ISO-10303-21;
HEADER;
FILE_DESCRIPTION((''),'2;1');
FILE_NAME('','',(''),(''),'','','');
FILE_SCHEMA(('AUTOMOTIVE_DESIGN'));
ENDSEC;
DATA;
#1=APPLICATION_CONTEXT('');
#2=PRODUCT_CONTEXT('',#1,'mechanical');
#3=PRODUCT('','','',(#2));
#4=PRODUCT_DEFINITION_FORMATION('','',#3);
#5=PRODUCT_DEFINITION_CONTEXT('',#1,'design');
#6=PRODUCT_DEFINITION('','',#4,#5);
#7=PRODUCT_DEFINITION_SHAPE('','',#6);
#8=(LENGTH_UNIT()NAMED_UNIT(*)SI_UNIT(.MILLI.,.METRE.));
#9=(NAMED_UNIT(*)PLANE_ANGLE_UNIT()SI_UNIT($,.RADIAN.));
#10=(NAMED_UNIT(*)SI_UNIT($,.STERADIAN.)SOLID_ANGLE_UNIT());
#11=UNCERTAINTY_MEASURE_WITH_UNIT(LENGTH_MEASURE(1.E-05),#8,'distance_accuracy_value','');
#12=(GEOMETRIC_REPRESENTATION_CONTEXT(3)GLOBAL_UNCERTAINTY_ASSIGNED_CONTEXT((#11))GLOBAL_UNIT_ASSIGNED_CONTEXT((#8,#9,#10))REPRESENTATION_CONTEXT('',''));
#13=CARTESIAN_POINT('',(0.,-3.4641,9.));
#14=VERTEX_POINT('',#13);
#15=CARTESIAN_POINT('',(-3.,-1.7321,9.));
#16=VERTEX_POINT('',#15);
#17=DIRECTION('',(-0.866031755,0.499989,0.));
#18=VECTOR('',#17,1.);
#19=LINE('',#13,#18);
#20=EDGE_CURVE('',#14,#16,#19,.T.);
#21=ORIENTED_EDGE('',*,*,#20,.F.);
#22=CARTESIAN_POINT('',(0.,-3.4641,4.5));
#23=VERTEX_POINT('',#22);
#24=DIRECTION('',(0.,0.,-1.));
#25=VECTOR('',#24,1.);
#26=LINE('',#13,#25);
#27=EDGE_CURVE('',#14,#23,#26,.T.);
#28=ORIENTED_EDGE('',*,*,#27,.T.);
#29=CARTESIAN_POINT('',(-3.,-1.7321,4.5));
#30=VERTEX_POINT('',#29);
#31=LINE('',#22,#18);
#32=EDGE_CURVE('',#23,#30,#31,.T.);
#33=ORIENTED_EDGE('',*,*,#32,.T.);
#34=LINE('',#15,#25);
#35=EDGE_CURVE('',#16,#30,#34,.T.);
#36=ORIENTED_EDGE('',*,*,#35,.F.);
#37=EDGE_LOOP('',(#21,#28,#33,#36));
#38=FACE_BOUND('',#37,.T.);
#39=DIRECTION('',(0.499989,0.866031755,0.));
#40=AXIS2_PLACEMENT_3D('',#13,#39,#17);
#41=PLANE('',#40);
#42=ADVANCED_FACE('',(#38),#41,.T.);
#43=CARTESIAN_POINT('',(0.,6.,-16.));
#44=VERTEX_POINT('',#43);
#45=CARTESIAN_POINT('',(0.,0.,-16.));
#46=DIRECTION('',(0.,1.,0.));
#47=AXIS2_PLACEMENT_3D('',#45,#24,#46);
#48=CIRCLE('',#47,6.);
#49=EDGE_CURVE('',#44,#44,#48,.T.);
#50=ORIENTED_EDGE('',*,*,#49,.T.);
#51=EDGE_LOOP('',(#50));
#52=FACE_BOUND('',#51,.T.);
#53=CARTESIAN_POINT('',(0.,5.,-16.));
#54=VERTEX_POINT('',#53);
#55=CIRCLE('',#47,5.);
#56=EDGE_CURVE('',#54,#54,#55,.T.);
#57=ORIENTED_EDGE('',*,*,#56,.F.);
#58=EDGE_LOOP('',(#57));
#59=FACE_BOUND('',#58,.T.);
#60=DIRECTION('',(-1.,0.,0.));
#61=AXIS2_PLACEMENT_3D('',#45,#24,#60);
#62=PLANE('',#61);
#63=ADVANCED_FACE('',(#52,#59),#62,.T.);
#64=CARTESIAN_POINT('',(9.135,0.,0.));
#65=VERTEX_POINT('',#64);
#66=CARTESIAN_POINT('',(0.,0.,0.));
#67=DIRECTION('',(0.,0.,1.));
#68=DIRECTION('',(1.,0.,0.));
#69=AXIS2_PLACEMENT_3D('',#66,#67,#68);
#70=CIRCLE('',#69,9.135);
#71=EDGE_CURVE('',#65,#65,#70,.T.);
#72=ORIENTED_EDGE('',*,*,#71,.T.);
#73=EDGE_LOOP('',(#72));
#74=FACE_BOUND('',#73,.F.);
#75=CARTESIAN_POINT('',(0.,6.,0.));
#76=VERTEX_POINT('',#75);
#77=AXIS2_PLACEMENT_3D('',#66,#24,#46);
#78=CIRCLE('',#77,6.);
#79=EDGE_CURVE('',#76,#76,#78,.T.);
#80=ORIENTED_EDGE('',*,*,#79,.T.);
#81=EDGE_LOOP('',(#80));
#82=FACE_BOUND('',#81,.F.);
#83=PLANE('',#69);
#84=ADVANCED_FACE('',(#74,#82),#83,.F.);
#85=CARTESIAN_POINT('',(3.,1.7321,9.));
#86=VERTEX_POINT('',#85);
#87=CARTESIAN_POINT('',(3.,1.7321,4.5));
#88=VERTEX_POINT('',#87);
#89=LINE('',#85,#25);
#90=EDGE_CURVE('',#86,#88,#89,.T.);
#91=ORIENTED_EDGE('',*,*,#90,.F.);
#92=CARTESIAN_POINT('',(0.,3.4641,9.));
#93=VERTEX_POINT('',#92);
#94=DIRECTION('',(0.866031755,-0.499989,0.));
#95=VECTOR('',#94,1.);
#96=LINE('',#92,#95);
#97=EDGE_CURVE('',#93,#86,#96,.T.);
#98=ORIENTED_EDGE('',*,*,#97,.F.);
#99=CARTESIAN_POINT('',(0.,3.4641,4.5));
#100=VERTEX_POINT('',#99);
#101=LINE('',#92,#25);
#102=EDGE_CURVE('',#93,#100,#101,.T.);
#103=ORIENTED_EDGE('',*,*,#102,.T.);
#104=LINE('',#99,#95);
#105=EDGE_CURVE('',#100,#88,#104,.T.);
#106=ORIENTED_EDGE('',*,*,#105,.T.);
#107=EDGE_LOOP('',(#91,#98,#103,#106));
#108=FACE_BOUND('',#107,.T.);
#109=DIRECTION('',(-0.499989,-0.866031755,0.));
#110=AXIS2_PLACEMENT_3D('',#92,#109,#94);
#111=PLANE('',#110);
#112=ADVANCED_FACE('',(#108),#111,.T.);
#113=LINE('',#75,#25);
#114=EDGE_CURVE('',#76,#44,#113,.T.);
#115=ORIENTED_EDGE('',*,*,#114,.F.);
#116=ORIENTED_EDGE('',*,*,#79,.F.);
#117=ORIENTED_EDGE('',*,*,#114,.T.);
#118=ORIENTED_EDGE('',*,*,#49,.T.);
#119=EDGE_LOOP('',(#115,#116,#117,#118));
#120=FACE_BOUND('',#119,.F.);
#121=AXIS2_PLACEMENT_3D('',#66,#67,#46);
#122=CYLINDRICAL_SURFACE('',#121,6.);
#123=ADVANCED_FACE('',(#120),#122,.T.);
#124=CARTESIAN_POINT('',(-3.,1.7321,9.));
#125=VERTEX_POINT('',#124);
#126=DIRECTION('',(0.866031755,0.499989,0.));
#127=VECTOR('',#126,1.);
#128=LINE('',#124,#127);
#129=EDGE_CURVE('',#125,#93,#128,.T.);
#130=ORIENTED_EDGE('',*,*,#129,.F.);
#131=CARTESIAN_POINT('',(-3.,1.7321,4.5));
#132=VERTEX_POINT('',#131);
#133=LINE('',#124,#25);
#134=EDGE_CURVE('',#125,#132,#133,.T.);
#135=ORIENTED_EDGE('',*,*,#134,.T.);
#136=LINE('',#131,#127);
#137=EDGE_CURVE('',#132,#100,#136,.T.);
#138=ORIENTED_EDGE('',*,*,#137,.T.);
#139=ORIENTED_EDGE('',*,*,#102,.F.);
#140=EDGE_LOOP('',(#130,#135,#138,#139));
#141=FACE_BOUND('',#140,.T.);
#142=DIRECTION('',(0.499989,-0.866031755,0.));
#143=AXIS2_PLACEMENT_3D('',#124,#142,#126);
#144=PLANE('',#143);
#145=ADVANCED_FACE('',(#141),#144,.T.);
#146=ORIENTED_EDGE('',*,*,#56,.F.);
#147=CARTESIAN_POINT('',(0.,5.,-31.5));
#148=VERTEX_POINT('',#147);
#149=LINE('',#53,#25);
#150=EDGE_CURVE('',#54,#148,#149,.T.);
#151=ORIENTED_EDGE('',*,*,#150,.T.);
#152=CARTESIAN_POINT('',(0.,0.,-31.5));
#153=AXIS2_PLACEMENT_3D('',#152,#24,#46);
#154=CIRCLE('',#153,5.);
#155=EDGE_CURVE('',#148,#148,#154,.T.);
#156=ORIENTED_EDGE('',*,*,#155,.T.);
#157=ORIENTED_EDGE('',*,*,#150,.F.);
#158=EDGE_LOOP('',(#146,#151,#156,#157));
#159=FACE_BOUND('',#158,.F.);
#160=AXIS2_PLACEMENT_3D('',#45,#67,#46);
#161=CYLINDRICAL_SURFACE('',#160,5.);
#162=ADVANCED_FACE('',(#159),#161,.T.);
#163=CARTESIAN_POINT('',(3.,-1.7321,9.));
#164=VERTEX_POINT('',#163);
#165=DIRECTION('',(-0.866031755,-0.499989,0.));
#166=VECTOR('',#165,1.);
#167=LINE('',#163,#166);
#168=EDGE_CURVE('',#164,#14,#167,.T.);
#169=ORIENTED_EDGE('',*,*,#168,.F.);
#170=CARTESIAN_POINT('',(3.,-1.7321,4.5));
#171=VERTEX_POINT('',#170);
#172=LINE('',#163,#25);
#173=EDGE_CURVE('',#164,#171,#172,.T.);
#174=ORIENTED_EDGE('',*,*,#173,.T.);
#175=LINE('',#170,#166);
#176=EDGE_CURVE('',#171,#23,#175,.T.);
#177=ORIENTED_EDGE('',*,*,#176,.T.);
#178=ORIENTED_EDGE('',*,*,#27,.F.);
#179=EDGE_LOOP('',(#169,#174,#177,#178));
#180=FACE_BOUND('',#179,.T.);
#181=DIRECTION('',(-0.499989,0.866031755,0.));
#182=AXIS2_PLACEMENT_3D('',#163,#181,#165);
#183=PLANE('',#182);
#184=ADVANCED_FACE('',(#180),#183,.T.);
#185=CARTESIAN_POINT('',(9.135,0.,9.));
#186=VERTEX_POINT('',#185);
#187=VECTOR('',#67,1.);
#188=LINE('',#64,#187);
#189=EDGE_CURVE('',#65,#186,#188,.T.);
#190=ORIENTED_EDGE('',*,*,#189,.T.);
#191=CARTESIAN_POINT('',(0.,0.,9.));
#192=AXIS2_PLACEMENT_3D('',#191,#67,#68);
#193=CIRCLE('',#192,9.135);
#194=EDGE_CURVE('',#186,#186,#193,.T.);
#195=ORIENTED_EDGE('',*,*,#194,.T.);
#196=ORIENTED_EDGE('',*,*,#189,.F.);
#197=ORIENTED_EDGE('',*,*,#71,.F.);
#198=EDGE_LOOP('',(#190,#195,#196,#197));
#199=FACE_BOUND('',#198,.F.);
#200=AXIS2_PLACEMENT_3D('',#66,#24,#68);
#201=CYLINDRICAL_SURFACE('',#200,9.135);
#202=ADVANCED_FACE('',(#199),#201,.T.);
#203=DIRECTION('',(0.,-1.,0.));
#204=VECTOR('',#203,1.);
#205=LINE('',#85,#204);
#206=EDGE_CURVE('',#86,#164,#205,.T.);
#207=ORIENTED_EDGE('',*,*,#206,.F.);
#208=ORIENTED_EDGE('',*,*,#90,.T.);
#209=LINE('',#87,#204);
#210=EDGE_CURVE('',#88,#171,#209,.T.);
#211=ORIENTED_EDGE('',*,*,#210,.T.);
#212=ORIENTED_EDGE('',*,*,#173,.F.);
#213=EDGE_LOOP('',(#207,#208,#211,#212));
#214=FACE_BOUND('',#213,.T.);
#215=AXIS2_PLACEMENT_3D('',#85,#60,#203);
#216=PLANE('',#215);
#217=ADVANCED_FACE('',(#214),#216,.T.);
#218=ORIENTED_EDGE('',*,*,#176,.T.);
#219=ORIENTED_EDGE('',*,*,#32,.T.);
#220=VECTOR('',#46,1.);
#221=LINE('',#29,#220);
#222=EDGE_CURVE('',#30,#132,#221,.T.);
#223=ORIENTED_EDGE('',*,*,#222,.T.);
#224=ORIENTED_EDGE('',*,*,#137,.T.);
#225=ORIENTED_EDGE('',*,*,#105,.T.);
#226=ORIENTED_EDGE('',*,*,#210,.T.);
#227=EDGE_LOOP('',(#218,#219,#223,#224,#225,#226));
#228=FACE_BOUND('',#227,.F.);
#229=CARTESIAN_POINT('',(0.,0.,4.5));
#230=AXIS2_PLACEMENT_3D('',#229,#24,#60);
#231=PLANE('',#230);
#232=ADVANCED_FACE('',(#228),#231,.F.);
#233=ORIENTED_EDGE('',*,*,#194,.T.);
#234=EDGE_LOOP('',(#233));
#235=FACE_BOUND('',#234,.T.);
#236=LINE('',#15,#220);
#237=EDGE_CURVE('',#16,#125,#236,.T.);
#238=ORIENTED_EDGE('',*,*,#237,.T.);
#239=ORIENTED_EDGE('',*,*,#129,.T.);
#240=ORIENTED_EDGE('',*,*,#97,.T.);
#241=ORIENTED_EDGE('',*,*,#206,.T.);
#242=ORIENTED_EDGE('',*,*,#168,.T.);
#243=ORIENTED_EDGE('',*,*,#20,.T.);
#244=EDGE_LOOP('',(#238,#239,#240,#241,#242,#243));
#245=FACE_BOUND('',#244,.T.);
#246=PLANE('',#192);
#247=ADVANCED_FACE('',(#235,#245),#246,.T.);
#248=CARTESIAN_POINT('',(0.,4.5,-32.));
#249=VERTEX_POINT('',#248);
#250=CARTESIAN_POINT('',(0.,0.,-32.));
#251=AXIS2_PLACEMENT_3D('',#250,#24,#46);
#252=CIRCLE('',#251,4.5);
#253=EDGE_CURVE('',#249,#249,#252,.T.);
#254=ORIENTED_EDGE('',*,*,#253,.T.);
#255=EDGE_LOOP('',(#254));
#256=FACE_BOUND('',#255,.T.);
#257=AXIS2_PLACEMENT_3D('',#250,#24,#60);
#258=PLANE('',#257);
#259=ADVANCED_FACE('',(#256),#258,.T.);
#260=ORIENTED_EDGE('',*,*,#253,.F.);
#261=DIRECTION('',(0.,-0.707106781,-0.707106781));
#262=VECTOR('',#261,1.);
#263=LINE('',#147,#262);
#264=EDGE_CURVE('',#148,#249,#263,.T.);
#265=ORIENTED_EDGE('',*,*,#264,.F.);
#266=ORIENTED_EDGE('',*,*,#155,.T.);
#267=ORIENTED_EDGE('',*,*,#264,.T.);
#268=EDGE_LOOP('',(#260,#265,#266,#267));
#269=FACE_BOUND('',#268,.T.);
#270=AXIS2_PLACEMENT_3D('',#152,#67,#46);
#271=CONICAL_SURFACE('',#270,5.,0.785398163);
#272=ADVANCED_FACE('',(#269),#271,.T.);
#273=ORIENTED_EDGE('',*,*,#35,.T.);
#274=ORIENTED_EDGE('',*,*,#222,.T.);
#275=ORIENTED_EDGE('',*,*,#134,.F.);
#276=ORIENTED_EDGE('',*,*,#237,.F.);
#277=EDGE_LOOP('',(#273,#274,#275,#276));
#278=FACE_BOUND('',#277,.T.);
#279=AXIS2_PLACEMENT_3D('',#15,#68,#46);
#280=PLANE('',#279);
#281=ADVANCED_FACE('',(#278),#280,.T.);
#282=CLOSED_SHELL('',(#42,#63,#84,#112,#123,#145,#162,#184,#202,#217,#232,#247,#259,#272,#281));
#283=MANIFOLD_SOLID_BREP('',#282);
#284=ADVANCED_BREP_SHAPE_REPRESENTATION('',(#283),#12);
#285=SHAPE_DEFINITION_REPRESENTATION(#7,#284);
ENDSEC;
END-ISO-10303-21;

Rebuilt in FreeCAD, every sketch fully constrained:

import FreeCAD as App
import Part
import Sketcher
from FreeCAD import Vector
Q = App.Units.Quantity


def edges_at(feature, points):
    """Names of the edges that pass closest to the given points."""
    edges = feature.Shape.Edges
    near = lambda p: min(range(len(edges)), key=lambda i: edges[i].distToShape(Part.Vertex(*p))[0])
    return sorted({f"Edge{near(p) + 1}" for p in points})

doc = App.newDocument("Part")
params = doc.addObject("Spreadsheet::Sheet", "Params")
for row, (alias, value) in enumerate([
    ("sketch1_diameter", "18.27 mm"),
    ("pad1_length", "9 mm"),
    ("pocket1_length", "4.5 mm"),
    ("sketch3_diameter", "12 mm"),
    ("pad2_length", "16 mm"),
    ("sketch4_diameter", "10 mm"),
    ("pad3_length", "16 mm"),
    ("chamfer_size", "0.5 mm"),
], start=1):
    params.set(f"A{row}", alias)
    params.set(f"B{row}", "=" + value)
    params.setAlias(f"B{row}", alias)

body = doc.addObject("PartDesign::Body", "Body")

sketch1 = body.newObject("Sketcher::SketchObject", "Sketch")
sketch1.AttachmentSupport = (doc.getObject("XY_Plane"), [""])
sketch1.MapMode = "FlatFace"
sketch1.addGeometry(Part.Circle(Vector(0, 0, 0), Vector(0, 0, 1), 9), False)
sketch1.addConstraint(Sketcher.Constraint("Coincident", 0, 3, -1, 1))
sketch1.addConstraint(Sketcher.Constraint("Diameter", 0, 18.27))
sketch1.setExpression("Constraints[1]", "Params.sketch1_diameter")
pad1 = body.newObject("PartDesign::Pad", "Pad")
pad1.Profile = sketch1
pad1.setExpression("Length", "Params.pad1_length")

sketch2 = body.newObject("Sketcher::SketchObject", "Sketch001")
sketch2.AttachmentSupport = (doc.getObject("XY_Plane"), [""])
sketch2.MapMode = "FlatFace"
sketch2.AttachmentOffset = App.Placement(Vector(0, 0, 9), App.Rotation())
sketch2.addGeometry(Part.LineSegment(Vector(-3, -1.7, 0), Vector(0, -3.5, 0)), False)
sketch2.addGeometry(Part.LineSegment(Vector(0, -3.5, 0), Vector(3, -1.7, 0)), False)
sketch2.addGeometry(Part.LineSegment(Vector(3, -1.7, 0), Vector(3, 1.7, 0)), False)
sketch2.addGeometry(Part.LineSegment(Vector(3, 1.7, 0), Vector(0, 3.5, 0)), False)
sketch2.addGeometry(Part.LineSegment(Vector(0, 3.5, 0), Vector(-3, 1.7, 0)), False)
sketch2.addGeometry(Part.LineSegment(Vector(-3, 1.7, 0), Vector(-3, -1.7, 0)), False)
sketch2.addConstraint(Sketcher.Constraint("Coincident", 0, 2, 1, 1))
sketch2.addConstraint(Sketcher.Constraint("Coincident", 1, 2, 2, 1))
sketch2.addConstraint(Sketcher.Constraint("Coincident", 2, 2, 3, 1))
sketch2.addConstraint(Sketcher.Constraint("Coincident", 3, 2, 4, 1))
sketch2.addConstraint(Sketcher.Constraint("Coincident", 4, 2, 5, 1))
sketch2.addConstraint(Sketcher.Constraint("Coincident", 5, 2, 0, 1))
sketch2.addConstraint(Sketcher.Constraint("Vertical", 2))
sketch2.addConstraint(Sketcher.Constraint("Vertical", 5))
sketch2.addConstraint(Sketcher.Constraint("Symmetric", 0, 2, 3, 2, -1, 1))
sketch2.addConstraint(Sketcher.Constraint("Symmetric", 1, 2, 4, 2, -1, 1))
sketch2.addConstraint(Sketcher.Constraint("PointOnObject", 0, 2, -2))
sketch2.addConstraint(Sketcher.Constraint("Parallel", 0, 3))
sketch2.addConstraint(Sketcher.Constraint("Horizontal", 2, 2, 4, 2))
sketch2.addConstraint(Sketcher.Constraint("Angle", 0, Q("-29.9993 deg")))
sketch2.addConstraint(Sketcher.Constraint("DistanceX", -1, 1, 1, 2, 3.0))
sketch2.addConstraint(Sketcher.Constraint("DistanceY", 2, 1, 2, 2, 3.4642))
pocket1 = body.newObject("PartDesign::Pocket", "Pocket")
pocket1.Profile = sketch2
pocket1.setExpression("Length", "Params.pocket1_length")

sketch3 = body.newObject("Sketcher::SketchObject", "Sketch002")
sketch3.AttachmentSupport = (doc.getObject("XY_Plane"), [""])
sketch3.MapMode = "FlatFace"
sketch3.addGeometry(Part.Circle(Vector(0, 0, 0), Vector(0, 0, 1), 6), False)
sketch3.addConstraint(Sketcher.Constraint("Coincident", 0, 3, -1, 1))
sketch3.addConstraint(Sketcher.Constraint("Diameter", 0, 12.0))
sketch3.setExpression("Constraints[1]", "Params.sketch3_diameter")
pad2 = body.newObject("PartDesign::Pad", "Pad001")
pad2.Profile = sketch3
pad2.setExpression("Length", "Params.pad2_length")
pad2.Reversed = True

sketch4 = body.newObject("Sketcher::SketchObject", "Sketch003")
sketch4.AttachmentSupport = (doc.getObject("XY_Plane"), [""])
sketch4.MapMode = "FlatFace"
sketch4.AttachmentOffset = App.Placement(Vector(0, 0, -16), App.Rotation())
sketch4.addGeometry(Part.Circle(Vector(0, 0, 0), Vector(0, 0, 1), 5), False)
sketch4.addConstraint(Sketcher.Constraint("Coincident", 0, 3, -1, 1))
sketch4.addConstraint(Sketcher.Constraint("Diameter", 0, 10.0))
sketch4.setExpression("Constraints[1]", "Params.sketch4_diameter")
pad3 = body.newObject("PartDesign::Pad", "Pad002")
pad3.Profile = sketch4
pad3.setExpression("Length", "Params.pad3_length")
pad3.Reversed = True
doc.recompute()

chamfer = body.newObject("PartDesign::Chamfer", "Chamfer")
chamfer.Base = (pad3, edges_at(pad3, [(0, -5, -32)]))
chamfer.setExpression("Size", "Params.chamfer_size")

doc.recompute()
